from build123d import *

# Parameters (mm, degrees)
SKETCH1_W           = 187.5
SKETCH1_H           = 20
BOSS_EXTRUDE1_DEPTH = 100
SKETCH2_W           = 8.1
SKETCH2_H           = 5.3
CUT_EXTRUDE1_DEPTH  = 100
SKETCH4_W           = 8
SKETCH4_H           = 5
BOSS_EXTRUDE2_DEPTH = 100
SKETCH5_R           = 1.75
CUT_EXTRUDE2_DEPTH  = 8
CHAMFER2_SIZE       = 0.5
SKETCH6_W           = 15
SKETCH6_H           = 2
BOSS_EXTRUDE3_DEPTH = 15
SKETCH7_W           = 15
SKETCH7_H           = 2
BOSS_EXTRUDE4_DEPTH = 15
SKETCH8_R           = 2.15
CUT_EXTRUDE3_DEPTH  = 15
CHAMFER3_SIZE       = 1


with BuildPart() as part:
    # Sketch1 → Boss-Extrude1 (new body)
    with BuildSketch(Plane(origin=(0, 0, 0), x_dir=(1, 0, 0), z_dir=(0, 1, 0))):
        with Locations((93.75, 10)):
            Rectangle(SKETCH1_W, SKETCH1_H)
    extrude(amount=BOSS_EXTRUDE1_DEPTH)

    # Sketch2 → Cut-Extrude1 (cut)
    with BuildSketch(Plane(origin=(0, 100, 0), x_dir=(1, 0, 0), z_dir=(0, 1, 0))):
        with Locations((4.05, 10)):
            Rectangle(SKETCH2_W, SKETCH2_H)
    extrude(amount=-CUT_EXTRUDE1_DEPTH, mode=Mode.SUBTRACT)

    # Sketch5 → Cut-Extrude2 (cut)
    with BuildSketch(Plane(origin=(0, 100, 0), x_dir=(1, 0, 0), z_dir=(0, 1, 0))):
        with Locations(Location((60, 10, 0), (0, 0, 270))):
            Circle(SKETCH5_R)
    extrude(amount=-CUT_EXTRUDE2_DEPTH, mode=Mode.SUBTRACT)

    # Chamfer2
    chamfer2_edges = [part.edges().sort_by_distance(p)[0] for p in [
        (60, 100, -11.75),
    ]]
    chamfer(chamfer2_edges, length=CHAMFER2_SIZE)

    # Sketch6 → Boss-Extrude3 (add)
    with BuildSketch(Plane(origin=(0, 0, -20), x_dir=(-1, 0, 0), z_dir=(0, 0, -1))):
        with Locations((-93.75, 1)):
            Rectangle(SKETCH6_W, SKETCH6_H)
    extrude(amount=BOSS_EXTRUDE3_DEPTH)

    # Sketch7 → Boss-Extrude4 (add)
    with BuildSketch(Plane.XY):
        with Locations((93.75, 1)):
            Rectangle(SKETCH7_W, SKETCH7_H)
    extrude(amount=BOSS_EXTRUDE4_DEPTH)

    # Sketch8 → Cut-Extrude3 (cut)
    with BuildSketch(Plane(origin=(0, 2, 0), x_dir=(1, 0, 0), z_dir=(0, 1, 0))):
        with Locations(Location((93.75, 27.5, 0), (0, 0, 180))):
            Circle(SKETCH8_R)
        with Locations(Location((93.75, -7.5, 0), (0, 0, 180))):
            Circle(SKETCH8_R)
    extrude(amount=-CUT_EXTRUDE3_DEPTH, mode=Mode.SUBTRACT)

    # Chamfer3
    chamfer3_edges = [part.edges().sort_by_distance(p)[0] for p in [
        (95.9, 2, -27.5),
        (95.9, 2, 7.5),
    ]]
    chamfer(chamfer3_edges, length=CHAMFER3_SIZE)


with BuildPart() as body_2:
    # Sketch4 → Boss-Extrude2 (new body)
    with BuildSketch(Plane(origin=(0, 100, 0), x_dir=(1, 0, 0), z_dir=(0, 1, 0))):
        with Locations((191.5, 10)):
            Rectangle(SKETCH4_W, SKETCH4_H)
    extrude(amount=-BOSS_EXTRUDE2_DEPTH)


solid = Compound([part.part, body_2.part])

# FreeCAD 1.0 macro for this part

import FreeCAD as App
import Part
import Sketcher
from FreeCAD import Vector
Q = App.Units.Quantity


def edges_at(feature, points):
    """Names of the edges that pass closest to the given points."""
    edges = feature.Shape.Edges
    near = lambda p: min(range(len(edges)), key=lambda i: edges[i].distToShape(Part.Vertex(*p))[0])
    return sorted({f"Edge{near(p) + 1}" for p in points})


def add_polygon(sketch, points):
    """Adds a closed chain of lines whose ends are joined by coincident constraints."""
    first, n = sketch.GeometryCount, len(points)
    for a, b in zip(points, points[1:] + points[:1]):
        sketch.addGeometry(Part.LineSegment(App.Vector(*a, 0), App.Vector(*b, 0)), False)
    for i in range(n):
        sketch.addConstraint(Sketcher.Constraint("Coincident", first + i, 2, first + (i + 1) % n, 1))

doc = App.newDocument("Part")
body = doc.addObject("PartDesign::Body", "Body")

# Sketch on XZ plane
sketch1 = body.newObject("Sketcher::SketchObject", "Sketch")
sketch1.AttachmentSupport = (doc.getObject("XZ_Plane"), [""])
sketch1.MapMode = "FlatFace"
add_polygon(sketch1, [(0, -20), (0, 0), (188, 0), (188, -20)])  # lines 0-3
sketch1.addConstraint([
    Sketcher.Constraint("Vertical", 0),
    Sketcher.Constraint("Horizontal", 1),
    Sketcher.Constraint("Vertical", 2),
    Sketcher.Constraint("Horizontal", 3),
    Sketcher.Constraint("Coincident", 0, 2, -1, 1),
    Sketcher.Constraint("DistanceY", 0, 1, 0, 2, Q("20 mm")),
    Sketcher.Constraint("DistanceX", 1, 1, 1, 2, Q("187.5 mm")),
])
pad1 = body.newObject("PartDesign::Pad", "Pad")
pad1.Profile = sketch1
pad1.Length = 100
pad1.Reversed = True

# Sketch on XZ plane
sketch2 = body.newObject("Sketcher::SketchObject", "Sketch001")
sketch2.AttachmentSupport = (doc.getObject("XZ_Plane"), [""])
sketch2.MapMode = "FlatFace"
sketch2.AttachmentOffset = App.Placement(Vector(0, 0, -100), App.Rotation())
add_polygon(sketch2, [(0, -13), (0, -7), (8, -7), (8, -13)])  # lines 0-3
sketch2.addConstraint([
    Sketcher.Constraint("Vertical", 0),
    Sketcher.Constraint("Horizontal", 1),
    Sketcher.Constraint("Vertical", 2),
    Sketcher.Constraint("Horizontal", 3),
    Sketcher.Constraint("PointOnObject", 0, 2, -2),
    Sketcher.Constraint("DistanceX", 1, 1, 1, 2, Q("8.1 mm")),
    Sketcher.Constraint("DistanceY", 0, 1, 0, 2, Q("5.3 mm")),
    Sketcher.Constraint("DistanceY", 0, 2, -1, 1, Q("7.35 mm")),
])
pocket1 = body.newObject("PartDesign::Pocket", "Pocket")
pocket1.Profile = sketch2
pocket1.Length = 100
pocket1.Reversed = True

# Sketch on XZ plane
sketch3 = body.newObject("Sketcher::SketchObject", "Sketch002")
sketch3.AttachmentSupport = (doc.getObject("XZ_Plane"), [""])
sketch3.MapMode = "FlatFace"
sketch3.AttachmentOffset = App.Placement(Vector(0, 0, -100), App.Rotation())
sketch3.addGeometry(Part.Circle(Vector(60, -10, 0), Vector(0, 0, 1), 1.8), False)
sketch3.addConstraint([
    Sketcher.Constraint("Diameter", 0, Q("3.5 mm")),
    Sketcher.Constraint("DistanceX", -1, 1, 0, 3, Q("60 mm")),
    Sketcher.Constraint("DistanceY", 0, 3, -1, 1, Q("10 mm")),
])
pocket2 = body.newObject("PartDesign::Pocket", "Pocket001")
pocket2.Profile = sketch3
pocket2.Length = 8
pocket2.Reversed = True
doc.recompute()

chamfer = body.newObject("PartDesign::Chamfer", "Chamfer")
chamfer.Base = (pocket2, edges_at(pocket2, [(60, 100, -11.75)]))
chamfer.Size = 0.5

# Sketch on XY plane
sketch4 = body.newObject("Sketcher::SketchObject", "Sketch003")
sketch4.AttachmentSupport = (doc.getObject("XY_Plane"), [""])
sketch4.MapMode = "FlatFace"
sketch4.AttachmentOffset = App.Placement(Vector(0, 0, -20), App.Rotation())
add_polygon(sketch4, [(101.2, 2), (101.2, 0), (86.2, 0), (86.2, 2)])  # lines 0-3
sketch4.addConstraint([
    Sketcher.Constraint("Vertical", 0),
    Sketcher.Constraint("Horizontal", 1),
    Sketcher.Constraint("Vertical", 2),
    Sketcher.Constraint("Horizontal", 3),
    Sketcher.Constraint("PointOnObject", 0, 2, -1),
    Sketcher.Constraint("DistanceX", 1, 2, 1, 1, Q("15 mm")),
    Sketcher.Constraint("DistanceY", 0, 2, 0, 1, Q("2 mm")),
    Sketcher.Constraint("DistanceX", -1, 1, 0, 2, Q("101.25 mm")),
])
pad2 = body.newObject("PartDesign::Pad", "Pad001")
pad2.Profile = sketch4
pad2.Length = 15
pad2.Reversed = True

# Sketch on XY plane
sketch5 = body.newObject("Sketcher::SketchObject", "Sketch004")
sketch5.AttachmentSupport = (doc.getObject("XY_Plane"), [""])
sketch5.MapMode = "FlatFace"
add_polygon(sketch5, [(86.2, 2), (86.2, 0), (101.2, 0), (101.2, 2)])  # lines 0-3
sketch5.addConstraint([
    Sketcher.Constraint("Vertical", 0),
    Sketcher.Constraint("Horizontal", 1),
    Sketcher.Constraint("Vertical", 2),
    Sketcher.Constraint("Horizontal", 3),
    Sketcher.Constraint("PointOnObject", 0, 2, -1),
    Sketcher.Constraint("DistanceX", 1, 1, 1, 2, Q("15 mm")),
    Sketcher.Constraint("DistanceY", 0, 2, 0, 1, Q("2 mm")),
    Sketcher.Constraint("DistanceX", -1, 1, 0, 2, Q("86.25 mm")),
])
pad3 = body.newObject("PartDesign::Pad", "Pad002")
pad3.Profile = sketch5
pad3.Length = 15

# Sketch on XZ plane
sketch6 = body.newObject("Sketcher::SketchObject", "Sketch005")
sketch6.AttachmentSupport = (doc.getObject("XZ_Plane"), [""])
sketch6.MapMode = "FlatFace"
sketch6.AttachmentOffset = App.Placement(Vector(0, 0, -2), App.Rotation())
sketch6.addGeometry([
    Part.Circle(Vector(93.8, -27.5, 0), Vector(0, 0, 1), 2.1),
    Part.Circle(Vector(93.8, 7.5, 0), Vector(0, 0, 1), 2.1),
], False)
sketch6.addConstraint([
    Sketcher.Constraint("Equal", 0, 1),
    Sketcher.Constraint("Vertical", 0, 3, 1, 3),
    Sketcher.Constraint("Diameter", 0, Q("4.3 mm")),
    Sketcher.Constraint("DistanceY", 0, 3, 1, 3, Q("35 mm")),
    Sketcher.Constraint("DistanceY", 0, 3, -1, 1, Q("27.5 mm")),
    Sketcher.Constraint("DistanceX", -1, 1, 0, 3, Q("93.75 mm")),
])
pocket3 = body.newObject("PartDesign::Pocket", "Pocket002")
pocket3.Profile = sketch6
pocket3.Length = 15
pocket3.Reversed = True
doc.recompute()

chamfer2 = body.newObject("PartDesign::Chamfer", "Chamfer001")
chamfer2.Base = (pocket3, edges_at(pocket3, [(95.9, 2, -27.5), (95.9, 2, 7.5)]))
chamfer2.Size = 1
body2 = doc.addObject("PartDesign::Body", "Body001")

# Sketch on XZ plane
sketch7 = body2.newObject("Sketcher::SketchObject", "Sketch006")
sketch7.AttachmentSupport = (doc.getObject("XZ_Plane001"), [""])
sketch7.MapMode = "FlatFace"
sketch7.AttachmentOffset = App.Placement(Vector(0, 0, -100), App.Rotation())
add_polygon(sketch7, [(188, -12), (188, -8), (196, -8), (196, -12)])  # lines 0-3
sketch7.addConstraint([
    Sketcher.Constraint("Vertical", 0),
    Sketcher.Constraint("Horizontal", 1),
    Sketcher.Constraint("Vertical", 2),
    Sketcher.Constraint("Horizontal", 3),
    Sketcher.Constraint("DistanceX", 1, 1, 1, 2, Q("8 mm")),
    Sketcher.Constraint("DistanceY", 0, 1, 0, 2, Q("5 mm")),
    Sketcher.Constraint("DistanceX", -1, 1, 0, 2, Q("187.5 mm")),
    Sketcher.Constraint("DistanceY", 0, 2, -1, 1, Q("7.5 mm")),
])
pad4 = body2.newObject("PartDesign::Pad", "Pad003")
pad4.Profile = sketch7
pad4.Length = 100

doc.recompute()
